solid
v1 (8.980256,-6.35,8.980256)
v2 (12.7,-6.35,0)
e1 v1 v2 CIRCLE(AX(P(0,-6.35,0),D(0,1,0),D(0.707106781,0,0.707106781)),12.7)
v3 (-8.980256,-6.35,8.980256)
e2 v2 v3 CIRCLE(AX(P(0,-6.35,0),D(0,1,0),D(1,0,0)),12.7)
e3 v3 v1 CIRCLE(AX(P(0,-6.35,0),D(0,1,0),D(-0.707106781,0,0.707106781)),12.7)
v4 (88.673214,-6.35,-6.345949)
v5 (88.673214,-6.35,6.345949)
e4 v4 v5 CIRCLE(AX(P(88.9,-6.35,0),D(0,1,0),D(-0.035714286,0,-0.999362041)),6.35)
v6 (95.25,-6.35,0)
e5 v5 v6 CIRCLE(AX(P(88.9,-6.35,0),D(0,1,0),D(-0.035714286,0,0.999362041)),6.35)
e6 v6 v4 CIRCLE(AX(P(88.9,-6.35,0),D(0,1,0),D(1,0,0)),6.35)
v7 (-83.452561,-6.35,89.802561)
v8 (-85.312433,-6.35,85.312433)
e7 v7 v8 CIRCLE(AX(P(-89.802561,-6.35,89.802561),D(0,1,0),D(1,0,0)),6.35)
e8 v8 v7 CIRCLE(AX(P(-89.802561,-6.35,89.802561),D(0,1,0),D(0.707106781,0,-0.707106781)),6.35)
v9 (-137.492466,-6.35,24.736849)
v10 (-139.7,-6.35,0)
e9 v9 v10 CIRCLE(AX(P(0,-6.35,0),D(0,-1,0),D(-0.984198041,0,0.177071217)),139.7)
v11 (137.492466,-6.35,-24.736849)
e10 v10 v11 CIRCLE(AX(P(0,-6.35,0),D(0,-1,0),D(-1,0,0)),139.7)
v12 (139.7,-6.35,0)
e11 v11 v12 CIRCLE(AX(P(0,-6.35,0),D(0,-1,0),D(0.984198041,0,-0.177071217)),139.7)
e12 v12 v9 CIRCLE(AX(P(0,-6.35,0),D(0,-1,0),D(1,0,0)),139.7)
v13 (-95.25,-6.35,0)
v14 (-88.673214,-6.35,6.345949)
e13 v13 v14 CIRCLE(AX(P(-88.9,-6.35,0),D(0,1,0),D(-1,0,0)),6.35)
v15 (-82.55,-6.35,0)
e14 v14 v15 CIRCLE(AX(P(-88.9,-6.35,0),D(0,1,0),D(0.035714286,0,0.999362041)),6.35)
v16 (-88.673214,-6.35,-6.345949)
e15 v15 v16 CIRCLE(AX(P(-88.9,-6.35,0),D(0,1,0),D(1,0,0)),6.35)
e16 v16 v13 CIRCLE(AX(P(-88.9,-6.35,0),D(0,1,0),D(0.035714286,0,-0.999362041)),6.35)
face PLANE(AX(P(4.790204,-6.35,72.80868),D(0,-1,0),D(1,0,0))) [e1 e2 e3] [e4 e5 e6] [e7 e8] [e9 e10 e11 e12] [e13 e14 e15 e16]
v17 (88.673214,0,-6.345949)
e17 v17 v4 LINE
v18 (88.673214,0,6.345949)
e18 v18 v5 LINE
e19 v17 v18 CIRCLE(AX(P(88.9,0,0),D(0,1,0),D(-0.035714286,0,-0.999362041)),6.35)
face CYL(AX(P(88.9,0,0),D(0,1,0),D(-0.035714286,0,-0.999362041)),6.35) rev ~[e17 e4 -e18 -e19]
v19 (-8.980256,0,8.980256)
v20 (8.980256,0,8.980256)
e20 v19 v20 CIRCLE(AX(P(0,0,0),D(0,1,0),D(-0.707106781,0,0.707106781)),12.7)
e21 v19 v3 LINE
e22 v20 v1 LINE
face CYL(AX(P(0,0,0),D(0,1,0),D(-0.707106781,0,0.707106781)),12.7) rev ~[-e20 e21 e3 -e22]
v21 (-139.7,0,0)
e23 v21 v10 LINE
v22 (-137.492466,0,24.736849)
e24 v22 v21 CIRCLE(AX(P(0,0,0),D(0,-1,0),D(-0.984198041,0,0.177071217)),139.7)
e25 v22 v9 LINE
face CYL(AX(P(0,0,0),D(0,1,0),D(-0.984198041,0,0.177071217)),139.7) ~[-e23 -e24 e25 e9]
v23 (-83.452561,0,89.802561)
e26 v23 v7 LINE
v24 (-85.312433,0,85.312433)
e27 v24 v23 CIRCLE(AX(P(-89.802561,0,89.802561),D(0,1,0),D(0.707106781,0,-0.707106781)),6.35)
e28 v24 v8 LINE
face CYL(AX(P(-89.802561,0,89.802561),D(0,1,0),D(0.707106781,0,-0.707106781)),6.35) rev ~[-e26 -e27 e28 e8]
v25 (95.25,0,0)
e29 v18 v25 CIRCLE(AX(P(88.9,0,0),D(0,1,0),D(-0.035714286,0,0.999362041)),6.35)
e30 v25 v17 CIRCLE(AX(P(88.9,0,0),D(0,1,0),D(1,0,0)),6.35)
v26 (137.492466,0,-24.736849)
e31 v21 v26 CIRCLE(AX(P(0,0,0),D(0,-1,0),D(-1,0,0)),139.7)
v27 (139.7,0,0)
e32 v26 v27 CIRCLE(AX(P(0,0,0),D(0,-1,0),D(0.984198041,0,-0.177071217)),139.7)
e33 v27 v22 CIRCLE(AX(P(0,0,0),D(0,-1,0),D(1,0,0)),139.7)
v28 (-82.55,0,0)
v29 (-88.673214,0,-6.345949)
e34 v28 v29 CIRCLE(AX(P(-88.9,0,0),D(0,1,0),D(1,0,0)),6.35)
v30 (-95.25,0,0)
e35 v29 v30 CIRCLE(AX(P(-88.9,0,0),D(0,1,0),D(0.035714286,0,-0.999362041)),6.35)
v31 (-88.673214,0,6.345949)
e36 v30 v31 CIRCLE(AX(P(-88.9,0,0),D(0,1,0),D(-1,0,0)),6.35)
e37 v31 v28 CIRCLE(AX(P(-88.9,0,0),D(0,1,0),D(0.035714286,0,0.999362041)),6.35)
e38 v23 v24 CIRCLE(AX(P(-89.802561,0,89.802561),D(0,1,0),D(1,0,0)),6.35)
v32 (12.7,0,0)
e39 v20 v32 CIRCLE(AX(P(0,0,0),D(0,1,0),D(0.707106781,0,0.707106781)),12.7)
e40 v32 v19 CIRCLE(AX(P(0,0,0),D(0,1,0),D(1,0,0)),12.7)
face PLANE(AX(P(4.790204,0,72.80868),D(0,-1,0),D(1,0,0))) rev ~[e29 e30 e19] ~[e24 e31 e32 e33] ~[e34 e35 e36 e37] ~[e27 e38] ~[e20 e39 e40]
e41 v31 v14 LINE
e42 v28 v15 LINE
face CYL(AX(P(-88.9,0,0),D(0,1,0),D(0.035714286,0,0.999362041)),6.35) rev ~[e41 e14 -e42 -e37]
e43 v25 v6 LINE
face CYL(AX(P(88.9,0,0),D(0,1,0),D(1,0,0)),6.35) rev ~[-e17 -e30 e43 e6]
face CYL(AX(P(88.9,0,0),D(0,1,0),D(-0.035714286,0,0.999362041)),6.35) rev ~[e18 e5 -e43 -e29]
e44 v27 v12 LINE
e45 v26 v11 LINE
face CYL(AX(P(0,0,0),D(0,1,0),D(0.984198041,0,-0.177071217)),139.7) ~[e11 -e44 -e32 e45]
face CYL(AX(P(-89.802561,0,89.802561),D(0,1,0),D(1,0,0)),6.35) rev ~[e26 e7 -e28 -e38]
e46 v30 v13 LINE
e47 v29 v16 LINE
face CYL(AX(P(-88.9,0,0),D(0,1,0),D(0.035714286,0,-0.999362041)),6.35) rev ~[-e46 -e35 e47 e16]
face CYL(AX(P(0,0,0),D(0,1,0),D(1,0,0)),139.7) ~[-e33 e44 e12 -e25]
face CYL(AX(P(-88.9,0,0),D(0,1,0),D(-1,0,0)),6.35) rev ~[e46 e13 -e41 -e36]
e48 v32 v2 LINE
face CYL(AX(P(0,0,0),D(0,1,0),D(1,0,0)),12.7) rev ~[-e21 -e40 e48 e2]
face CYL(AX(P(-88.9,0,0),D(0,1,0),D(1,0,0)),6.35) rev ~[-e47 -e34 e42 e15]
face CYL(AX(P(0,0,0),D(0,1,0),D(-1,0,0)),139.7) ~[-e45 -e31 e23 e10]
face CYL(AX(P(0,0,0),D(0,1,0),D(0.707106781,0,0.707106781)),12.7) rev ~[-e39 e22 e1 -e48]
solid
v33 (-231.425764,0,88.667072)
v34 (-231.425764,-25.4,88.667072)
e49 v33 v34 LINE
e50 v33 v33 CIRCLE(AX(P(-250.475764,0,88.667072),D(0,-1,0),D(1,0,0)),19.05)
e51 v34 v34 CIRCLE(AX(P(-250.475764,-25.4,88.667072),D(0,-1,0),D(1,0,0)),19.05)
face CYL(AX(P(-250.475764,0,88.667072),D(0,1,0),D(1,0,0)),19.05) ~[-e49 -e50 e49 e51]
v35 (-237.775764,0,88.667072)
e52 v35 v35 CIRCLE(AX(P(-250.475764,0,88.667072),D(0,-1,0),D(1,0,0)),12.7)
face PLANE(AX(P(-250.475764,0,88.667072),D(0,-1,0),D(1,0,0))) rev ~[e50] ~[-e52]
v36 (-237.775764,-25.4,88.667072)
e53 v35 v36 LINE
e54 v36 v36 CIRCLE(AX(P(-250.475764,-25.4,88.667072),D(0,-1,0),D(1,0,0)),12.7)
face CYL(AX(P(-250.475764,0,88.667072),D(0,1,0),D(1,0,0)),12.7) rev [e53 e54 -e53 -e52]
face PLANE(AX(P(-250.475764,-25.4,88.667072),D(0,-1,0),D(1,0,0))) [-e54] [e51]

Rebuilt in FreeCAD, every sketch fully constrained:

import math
import FreeCAD as App
import Part
import Sketcher
from FreeCAD import Vector
Q = App.Units.Quantity

doc = App.newDocument("Part")
body = doc.addObject("PartDesign::Body", "Body")

# Sketch on XZ plane
sketch1 = doc.addObject("Sketcher::SketchObject", "Sketch")
body.addObject(sketch1)
sketch1.AttachmentSupport = (doc.XZ_Plane, [""])
sketch1.MapMode = "FlatFace"
sketch1.addGeometry(Part.ArcOfCircle(Part.Circle(Vector(0, 0, 0), Vector(0, 0, 1), 139.7), math.radians(180), math.radians(349.800787)), False)
sketch1.addGeometry(Part.ArcOfCircle(Part.Circle(Vector(0, 0, 0), Vector(0, 0, 1), 139.7), math.radians(-10.199213), math.radians(0)), False)
sketch1.addGeometry(Part.ArcOfCircle(Part.Circle(Vector(0, 0, 0), Vector(0, 0, 1), 139.7), math.radians(0), math.radians(169.800787)), False)
sketch1.addGeometry(Part.ArcOfCircle(Part.Circle(Vector(0, 0, 0), Vector(0, 0, 1), 139.7), math.radians(169.800787), math.radians(180)), False)
sketch1.addGeometry(Part.ArcOfCircle(Part.Circle(Vector(88.9, 0, 0), Vector(0, 0, 1), 6.35), math.radians(0), math.radians(92.046713)), False)
sketch1.addGeometry(Part.ArcOfCircle(Part.Circle(Vector(88.9, 0, 0), Vector(0, 0, 1), 6.35), math.radians(-92.046713), math.radians(0)), False)
sketch1.addGeometry(Part.ArcOfCircle(Part.Circle(Vector(88.9, 0, 0), Vector(0, 0, 1), 6.35), math.radians(92.046713), math.radians(267.953287)), False)
sketch1.addGeometry(Part.ArcOfCircle(Part.Circle(Vector(-88.9, 0, 0), Vector(0, 0, 1), 6.35), math.radians(180), math.radians(272.046713)), False)
sketch1.addGeometry(Part.ArcOfCircle(Part.Circle(Vector(-88.9, 0, 0), Vector(0, 0, 1), 6.35), math.radians(87.953287), math.radians(180)), False)
sketch1.addGeometry(Part.ArcOfCircle(Part.Circle(Vector(-88.9, 0, 0), Vector(0, 0, 1), 6.35), math.radians(0), math.radians(87.953287)), False)
sketch1.addGeometry(Part.ArcOfCircle(Part.Circle(Vector(-88.9, 0, 0), Vector(0, 0, 1), 6.35), math.radians(-87.953287), math.radians(0)), False)
sketch1.addGeometry(Part.ArcOfCircle(Part.Circle(Vector(-89.802561, 89.802561, 0), Vector(0, 0, 1), 6.35), math.radians(0), math.radians(315)), False)
sketch1.addGeometry(Part.ArcOfCircle(Part.Circle(Vector(-89.802561, 89.802561, 0), Vector(0, 0, 1), 6.35), math.radians(-45), math.radians(0)), False)
sketch1.addGeometry(Part.ArcOfCircle(Part.Circle(Vector(0, 0, 0), Vector(0, 0, 1), 12.7), math.radians(0), math.radians(45)), False)
sketch1.addGeometry(Part.ArcOfCircle(Part.Circle(Vector(0, 0, 0), Vector(0, 0, 1), 12.7), math.radians(135), math.radians(360)), False)
sketch1.addGeometry(Part.ArcOfCircle(Part.Circle(Vector(0, 0, 0), Vector(0, 0, 1), 12.7), math.radians(45), math.radians(135)), False)
sketch1.addConstraint(Sketcher.Constraint("Tangent", 0, 2, 1, 1))
sketch1.addConstraint(Sketcher.Constraint("Tangent", 1, 2, 2, 1))
sketch1.addConstraint(Sketcher.Constraint("Tangent", 2, 2, 3, 1))
sketch1.addConstraint(Sketcher.Constraint("Coincident", 3, 2, 0, 1))
sketch1.addConstraint(Sketcher.Constraint("Tangent", 4, 1, 5, 2))
sketch1.addConstraint(Sketcher.Constraint("Tangent", 5, 1, 6, 2))
sketch1.addConstraint(Sketcher.Constraint("Tangent", 6, 1, 4, 2))
sketch1.addConstraint(Sketcher.Constraint("Tangent", 7, 1, 8, 2))
sketch1.addConstraint(Sketcher.Constraint("Tangent", 8, 1, 9, 2))
sketch1.addConstraint(Sketcher.Constraint("Tangent", 9, 1, 10, 2))
sketch1.addConstraint(Sketcher.Constraint("Tangent", 10, 1, 7, 2))
sketch1.addConstraint(Sketcher.Constraint("Tangent", 11, 1, 12, 2))
sketch1.addConstraint(Sketcher.Constraint("Coincident", 12, 1, 11, 2))
sketch1.addConstraint(Sketcher.Constraint("Tangent", 13, 1, 14, 2))
sketch1.addConstraint(Sketcher.Constraint("Tangent", 14, 1, 15, 2))
sketch1.addConstraint(Sketcher.Constraint("Tangent", 15, 1, 13, 2))
sketch1.addConstraint(Sketcher.Constraint("Coincident", 0, 3, -1, 1))
sketch1.addConstraint(Sketcher.Constraint("Coincident", 2, 3, -1, 1))
sketch1.addConstraint(Sketcher.Constraint("Coincident", 13, 3, -1, 1))
sketch1.addConstraint(Sketcher.Constraint("Equal", 6, 7))
sketch1.addConstraint(Sketcher.Constraint("Equal", 7, 8))
sketch1.addConstraint(Sketcher.Constraint("Equal", 10, 11))
sketch1.addConstraint(Sketcher.Constraint("Symmetric", 4, 3, 7, 3, -1, 1))
sketch1.addConstraint(Sketcher.Constraint("Symmetric", 6, 1, 8, 1, -2))
sketch1.addConstraint(Sketcher.Constraint("PointOnObject", 1, 2, -1))
sketch1.addConstraint(Sketcher.Constraint("PointOnObject", 3, 2, -1))
sketch1.addConstraint(Sketcher.Constraint("PointOnObject", 4, 1, -1))
sketch1.addConstraint(Sketcher.Constraint("PointOnObject", 7, 1, -1))
sketch1.addConstraint(Sketcher.Constraint("PointOnObject", 9, 1, -1))
sketch1.addConstraint(Sketcher.Constraint("PointOnObject", 13, 1, -1))
sketch1.addConstraint(Sketcher.Constraint("Horizontal", 5, 1, 10, 1))
sketch1.addConstraint(Sketcher.Constraint("Horizontal", 12, 3, 11, 1))
sketch1.addConstraint(Sketcher.Constraint("Horizontal", 14, 1, 15, 1))
sketch1.addConstraint(Sketcher.Constraint("Vertical", 5, 1, 6, 1))
sketch1.addConstraint(Sketcher.Constraint("Radius", 0, Q("5.5 in")))
sketch1.addConstraint(Sketcher.Constraint("Radius", 13, Q("0.5 in")))
sketch1.addConstraint(Sketcher.Constraint("Radius", 4, Q("0.25 in")))
sketch1.addConstraint(Sketcher.Constraint("DistanceX", 7, 3, 4, 3, Q("7 in")))
sketch1.addConstraint(Sketcher.Constraint("DistanceX", 11, 3, -1, 1, Q("89.802561 mm")))
sketch1.addConstraint(Sketcher.Constraint("DistanceY", -1, 1, 11, 3, Q("89.802561 mm")))
sketch1.addConstraint(Sketcher.Constraint("DistanceY", 0, 2, -1, 1, Q("24.736849 mm")))
sketch1.addConstraint(Sketcher.Constraint("DistanceY", -1, 1, 2, 2, Q("24.736849 mm")))
sketch1.addConstraint(Sketcher.Constraint("DistanceY", 5, 1, -1, 1, Q("6.345949 mm")))
sketch1.addConstraint(Sketcher.Constraint("DistanceX", 12, 1, 11, 1, Q("1.859872 mm")))
sketch1.addConstraint(Sketcher.Constraint("DistanceX", 14, 1, -1, 1, Q("8.980256 mm")))
pad1 = doc.addObject("PartDesign::Pad", "Pad")
body.addObject(pad1)
pad1.Profile = sketch1
pad1.Length = Q("0.25 in")
body2 = doc.addObject("PartDesign::Body", "Body001")

# Sketch on XZ plane
sketch2 = doc.addObject("Sketcher::SketchObject", "Sketch001")
body2.addObject(sketch2)
sketch2.AttachmentSupport = (doc.getObject("XZ_Plane001"), [""])
sketch2.MapMode = "FlatFace"
sketch2.addGeometry(Part.Circle(Vector(-250.475764, 88.667072, 0), Vector(0, 0, 1), 19.05), False)
sketch2.addGeometry(Part.Circle(Vector(-250.475764, 88.667072, 0), Vector(0, 0, 1), 12.7), False)
sketch2.addConstraint(Sketcher.Constraint("Coincident", 1, 3, 0, 3))
sketch2.addConstraint(Sketcher.Constraint("Diameter", 1, Q("1 in")))
sketch2.addConstraint(Sketcher.Constraint("Diameter", 0, Q("1.5 in")))
sketch2.addConstraint(Sketcher.Constraint("DistanceX", 0, 3, -1, 1, Q("250.475764 mm")))
sketch2.addConstraint(Sketcher.Constraint("DistanceY", -1, 1, 0, 3, Q("88.667072 mm")))
pad2 = doc.addObject("PartDesign::Pad", "Pad001")
body2.addObject(pad2)
pad2.Profile = sketch2
pad2.Length = Q("1 in")

doc.recompute()
